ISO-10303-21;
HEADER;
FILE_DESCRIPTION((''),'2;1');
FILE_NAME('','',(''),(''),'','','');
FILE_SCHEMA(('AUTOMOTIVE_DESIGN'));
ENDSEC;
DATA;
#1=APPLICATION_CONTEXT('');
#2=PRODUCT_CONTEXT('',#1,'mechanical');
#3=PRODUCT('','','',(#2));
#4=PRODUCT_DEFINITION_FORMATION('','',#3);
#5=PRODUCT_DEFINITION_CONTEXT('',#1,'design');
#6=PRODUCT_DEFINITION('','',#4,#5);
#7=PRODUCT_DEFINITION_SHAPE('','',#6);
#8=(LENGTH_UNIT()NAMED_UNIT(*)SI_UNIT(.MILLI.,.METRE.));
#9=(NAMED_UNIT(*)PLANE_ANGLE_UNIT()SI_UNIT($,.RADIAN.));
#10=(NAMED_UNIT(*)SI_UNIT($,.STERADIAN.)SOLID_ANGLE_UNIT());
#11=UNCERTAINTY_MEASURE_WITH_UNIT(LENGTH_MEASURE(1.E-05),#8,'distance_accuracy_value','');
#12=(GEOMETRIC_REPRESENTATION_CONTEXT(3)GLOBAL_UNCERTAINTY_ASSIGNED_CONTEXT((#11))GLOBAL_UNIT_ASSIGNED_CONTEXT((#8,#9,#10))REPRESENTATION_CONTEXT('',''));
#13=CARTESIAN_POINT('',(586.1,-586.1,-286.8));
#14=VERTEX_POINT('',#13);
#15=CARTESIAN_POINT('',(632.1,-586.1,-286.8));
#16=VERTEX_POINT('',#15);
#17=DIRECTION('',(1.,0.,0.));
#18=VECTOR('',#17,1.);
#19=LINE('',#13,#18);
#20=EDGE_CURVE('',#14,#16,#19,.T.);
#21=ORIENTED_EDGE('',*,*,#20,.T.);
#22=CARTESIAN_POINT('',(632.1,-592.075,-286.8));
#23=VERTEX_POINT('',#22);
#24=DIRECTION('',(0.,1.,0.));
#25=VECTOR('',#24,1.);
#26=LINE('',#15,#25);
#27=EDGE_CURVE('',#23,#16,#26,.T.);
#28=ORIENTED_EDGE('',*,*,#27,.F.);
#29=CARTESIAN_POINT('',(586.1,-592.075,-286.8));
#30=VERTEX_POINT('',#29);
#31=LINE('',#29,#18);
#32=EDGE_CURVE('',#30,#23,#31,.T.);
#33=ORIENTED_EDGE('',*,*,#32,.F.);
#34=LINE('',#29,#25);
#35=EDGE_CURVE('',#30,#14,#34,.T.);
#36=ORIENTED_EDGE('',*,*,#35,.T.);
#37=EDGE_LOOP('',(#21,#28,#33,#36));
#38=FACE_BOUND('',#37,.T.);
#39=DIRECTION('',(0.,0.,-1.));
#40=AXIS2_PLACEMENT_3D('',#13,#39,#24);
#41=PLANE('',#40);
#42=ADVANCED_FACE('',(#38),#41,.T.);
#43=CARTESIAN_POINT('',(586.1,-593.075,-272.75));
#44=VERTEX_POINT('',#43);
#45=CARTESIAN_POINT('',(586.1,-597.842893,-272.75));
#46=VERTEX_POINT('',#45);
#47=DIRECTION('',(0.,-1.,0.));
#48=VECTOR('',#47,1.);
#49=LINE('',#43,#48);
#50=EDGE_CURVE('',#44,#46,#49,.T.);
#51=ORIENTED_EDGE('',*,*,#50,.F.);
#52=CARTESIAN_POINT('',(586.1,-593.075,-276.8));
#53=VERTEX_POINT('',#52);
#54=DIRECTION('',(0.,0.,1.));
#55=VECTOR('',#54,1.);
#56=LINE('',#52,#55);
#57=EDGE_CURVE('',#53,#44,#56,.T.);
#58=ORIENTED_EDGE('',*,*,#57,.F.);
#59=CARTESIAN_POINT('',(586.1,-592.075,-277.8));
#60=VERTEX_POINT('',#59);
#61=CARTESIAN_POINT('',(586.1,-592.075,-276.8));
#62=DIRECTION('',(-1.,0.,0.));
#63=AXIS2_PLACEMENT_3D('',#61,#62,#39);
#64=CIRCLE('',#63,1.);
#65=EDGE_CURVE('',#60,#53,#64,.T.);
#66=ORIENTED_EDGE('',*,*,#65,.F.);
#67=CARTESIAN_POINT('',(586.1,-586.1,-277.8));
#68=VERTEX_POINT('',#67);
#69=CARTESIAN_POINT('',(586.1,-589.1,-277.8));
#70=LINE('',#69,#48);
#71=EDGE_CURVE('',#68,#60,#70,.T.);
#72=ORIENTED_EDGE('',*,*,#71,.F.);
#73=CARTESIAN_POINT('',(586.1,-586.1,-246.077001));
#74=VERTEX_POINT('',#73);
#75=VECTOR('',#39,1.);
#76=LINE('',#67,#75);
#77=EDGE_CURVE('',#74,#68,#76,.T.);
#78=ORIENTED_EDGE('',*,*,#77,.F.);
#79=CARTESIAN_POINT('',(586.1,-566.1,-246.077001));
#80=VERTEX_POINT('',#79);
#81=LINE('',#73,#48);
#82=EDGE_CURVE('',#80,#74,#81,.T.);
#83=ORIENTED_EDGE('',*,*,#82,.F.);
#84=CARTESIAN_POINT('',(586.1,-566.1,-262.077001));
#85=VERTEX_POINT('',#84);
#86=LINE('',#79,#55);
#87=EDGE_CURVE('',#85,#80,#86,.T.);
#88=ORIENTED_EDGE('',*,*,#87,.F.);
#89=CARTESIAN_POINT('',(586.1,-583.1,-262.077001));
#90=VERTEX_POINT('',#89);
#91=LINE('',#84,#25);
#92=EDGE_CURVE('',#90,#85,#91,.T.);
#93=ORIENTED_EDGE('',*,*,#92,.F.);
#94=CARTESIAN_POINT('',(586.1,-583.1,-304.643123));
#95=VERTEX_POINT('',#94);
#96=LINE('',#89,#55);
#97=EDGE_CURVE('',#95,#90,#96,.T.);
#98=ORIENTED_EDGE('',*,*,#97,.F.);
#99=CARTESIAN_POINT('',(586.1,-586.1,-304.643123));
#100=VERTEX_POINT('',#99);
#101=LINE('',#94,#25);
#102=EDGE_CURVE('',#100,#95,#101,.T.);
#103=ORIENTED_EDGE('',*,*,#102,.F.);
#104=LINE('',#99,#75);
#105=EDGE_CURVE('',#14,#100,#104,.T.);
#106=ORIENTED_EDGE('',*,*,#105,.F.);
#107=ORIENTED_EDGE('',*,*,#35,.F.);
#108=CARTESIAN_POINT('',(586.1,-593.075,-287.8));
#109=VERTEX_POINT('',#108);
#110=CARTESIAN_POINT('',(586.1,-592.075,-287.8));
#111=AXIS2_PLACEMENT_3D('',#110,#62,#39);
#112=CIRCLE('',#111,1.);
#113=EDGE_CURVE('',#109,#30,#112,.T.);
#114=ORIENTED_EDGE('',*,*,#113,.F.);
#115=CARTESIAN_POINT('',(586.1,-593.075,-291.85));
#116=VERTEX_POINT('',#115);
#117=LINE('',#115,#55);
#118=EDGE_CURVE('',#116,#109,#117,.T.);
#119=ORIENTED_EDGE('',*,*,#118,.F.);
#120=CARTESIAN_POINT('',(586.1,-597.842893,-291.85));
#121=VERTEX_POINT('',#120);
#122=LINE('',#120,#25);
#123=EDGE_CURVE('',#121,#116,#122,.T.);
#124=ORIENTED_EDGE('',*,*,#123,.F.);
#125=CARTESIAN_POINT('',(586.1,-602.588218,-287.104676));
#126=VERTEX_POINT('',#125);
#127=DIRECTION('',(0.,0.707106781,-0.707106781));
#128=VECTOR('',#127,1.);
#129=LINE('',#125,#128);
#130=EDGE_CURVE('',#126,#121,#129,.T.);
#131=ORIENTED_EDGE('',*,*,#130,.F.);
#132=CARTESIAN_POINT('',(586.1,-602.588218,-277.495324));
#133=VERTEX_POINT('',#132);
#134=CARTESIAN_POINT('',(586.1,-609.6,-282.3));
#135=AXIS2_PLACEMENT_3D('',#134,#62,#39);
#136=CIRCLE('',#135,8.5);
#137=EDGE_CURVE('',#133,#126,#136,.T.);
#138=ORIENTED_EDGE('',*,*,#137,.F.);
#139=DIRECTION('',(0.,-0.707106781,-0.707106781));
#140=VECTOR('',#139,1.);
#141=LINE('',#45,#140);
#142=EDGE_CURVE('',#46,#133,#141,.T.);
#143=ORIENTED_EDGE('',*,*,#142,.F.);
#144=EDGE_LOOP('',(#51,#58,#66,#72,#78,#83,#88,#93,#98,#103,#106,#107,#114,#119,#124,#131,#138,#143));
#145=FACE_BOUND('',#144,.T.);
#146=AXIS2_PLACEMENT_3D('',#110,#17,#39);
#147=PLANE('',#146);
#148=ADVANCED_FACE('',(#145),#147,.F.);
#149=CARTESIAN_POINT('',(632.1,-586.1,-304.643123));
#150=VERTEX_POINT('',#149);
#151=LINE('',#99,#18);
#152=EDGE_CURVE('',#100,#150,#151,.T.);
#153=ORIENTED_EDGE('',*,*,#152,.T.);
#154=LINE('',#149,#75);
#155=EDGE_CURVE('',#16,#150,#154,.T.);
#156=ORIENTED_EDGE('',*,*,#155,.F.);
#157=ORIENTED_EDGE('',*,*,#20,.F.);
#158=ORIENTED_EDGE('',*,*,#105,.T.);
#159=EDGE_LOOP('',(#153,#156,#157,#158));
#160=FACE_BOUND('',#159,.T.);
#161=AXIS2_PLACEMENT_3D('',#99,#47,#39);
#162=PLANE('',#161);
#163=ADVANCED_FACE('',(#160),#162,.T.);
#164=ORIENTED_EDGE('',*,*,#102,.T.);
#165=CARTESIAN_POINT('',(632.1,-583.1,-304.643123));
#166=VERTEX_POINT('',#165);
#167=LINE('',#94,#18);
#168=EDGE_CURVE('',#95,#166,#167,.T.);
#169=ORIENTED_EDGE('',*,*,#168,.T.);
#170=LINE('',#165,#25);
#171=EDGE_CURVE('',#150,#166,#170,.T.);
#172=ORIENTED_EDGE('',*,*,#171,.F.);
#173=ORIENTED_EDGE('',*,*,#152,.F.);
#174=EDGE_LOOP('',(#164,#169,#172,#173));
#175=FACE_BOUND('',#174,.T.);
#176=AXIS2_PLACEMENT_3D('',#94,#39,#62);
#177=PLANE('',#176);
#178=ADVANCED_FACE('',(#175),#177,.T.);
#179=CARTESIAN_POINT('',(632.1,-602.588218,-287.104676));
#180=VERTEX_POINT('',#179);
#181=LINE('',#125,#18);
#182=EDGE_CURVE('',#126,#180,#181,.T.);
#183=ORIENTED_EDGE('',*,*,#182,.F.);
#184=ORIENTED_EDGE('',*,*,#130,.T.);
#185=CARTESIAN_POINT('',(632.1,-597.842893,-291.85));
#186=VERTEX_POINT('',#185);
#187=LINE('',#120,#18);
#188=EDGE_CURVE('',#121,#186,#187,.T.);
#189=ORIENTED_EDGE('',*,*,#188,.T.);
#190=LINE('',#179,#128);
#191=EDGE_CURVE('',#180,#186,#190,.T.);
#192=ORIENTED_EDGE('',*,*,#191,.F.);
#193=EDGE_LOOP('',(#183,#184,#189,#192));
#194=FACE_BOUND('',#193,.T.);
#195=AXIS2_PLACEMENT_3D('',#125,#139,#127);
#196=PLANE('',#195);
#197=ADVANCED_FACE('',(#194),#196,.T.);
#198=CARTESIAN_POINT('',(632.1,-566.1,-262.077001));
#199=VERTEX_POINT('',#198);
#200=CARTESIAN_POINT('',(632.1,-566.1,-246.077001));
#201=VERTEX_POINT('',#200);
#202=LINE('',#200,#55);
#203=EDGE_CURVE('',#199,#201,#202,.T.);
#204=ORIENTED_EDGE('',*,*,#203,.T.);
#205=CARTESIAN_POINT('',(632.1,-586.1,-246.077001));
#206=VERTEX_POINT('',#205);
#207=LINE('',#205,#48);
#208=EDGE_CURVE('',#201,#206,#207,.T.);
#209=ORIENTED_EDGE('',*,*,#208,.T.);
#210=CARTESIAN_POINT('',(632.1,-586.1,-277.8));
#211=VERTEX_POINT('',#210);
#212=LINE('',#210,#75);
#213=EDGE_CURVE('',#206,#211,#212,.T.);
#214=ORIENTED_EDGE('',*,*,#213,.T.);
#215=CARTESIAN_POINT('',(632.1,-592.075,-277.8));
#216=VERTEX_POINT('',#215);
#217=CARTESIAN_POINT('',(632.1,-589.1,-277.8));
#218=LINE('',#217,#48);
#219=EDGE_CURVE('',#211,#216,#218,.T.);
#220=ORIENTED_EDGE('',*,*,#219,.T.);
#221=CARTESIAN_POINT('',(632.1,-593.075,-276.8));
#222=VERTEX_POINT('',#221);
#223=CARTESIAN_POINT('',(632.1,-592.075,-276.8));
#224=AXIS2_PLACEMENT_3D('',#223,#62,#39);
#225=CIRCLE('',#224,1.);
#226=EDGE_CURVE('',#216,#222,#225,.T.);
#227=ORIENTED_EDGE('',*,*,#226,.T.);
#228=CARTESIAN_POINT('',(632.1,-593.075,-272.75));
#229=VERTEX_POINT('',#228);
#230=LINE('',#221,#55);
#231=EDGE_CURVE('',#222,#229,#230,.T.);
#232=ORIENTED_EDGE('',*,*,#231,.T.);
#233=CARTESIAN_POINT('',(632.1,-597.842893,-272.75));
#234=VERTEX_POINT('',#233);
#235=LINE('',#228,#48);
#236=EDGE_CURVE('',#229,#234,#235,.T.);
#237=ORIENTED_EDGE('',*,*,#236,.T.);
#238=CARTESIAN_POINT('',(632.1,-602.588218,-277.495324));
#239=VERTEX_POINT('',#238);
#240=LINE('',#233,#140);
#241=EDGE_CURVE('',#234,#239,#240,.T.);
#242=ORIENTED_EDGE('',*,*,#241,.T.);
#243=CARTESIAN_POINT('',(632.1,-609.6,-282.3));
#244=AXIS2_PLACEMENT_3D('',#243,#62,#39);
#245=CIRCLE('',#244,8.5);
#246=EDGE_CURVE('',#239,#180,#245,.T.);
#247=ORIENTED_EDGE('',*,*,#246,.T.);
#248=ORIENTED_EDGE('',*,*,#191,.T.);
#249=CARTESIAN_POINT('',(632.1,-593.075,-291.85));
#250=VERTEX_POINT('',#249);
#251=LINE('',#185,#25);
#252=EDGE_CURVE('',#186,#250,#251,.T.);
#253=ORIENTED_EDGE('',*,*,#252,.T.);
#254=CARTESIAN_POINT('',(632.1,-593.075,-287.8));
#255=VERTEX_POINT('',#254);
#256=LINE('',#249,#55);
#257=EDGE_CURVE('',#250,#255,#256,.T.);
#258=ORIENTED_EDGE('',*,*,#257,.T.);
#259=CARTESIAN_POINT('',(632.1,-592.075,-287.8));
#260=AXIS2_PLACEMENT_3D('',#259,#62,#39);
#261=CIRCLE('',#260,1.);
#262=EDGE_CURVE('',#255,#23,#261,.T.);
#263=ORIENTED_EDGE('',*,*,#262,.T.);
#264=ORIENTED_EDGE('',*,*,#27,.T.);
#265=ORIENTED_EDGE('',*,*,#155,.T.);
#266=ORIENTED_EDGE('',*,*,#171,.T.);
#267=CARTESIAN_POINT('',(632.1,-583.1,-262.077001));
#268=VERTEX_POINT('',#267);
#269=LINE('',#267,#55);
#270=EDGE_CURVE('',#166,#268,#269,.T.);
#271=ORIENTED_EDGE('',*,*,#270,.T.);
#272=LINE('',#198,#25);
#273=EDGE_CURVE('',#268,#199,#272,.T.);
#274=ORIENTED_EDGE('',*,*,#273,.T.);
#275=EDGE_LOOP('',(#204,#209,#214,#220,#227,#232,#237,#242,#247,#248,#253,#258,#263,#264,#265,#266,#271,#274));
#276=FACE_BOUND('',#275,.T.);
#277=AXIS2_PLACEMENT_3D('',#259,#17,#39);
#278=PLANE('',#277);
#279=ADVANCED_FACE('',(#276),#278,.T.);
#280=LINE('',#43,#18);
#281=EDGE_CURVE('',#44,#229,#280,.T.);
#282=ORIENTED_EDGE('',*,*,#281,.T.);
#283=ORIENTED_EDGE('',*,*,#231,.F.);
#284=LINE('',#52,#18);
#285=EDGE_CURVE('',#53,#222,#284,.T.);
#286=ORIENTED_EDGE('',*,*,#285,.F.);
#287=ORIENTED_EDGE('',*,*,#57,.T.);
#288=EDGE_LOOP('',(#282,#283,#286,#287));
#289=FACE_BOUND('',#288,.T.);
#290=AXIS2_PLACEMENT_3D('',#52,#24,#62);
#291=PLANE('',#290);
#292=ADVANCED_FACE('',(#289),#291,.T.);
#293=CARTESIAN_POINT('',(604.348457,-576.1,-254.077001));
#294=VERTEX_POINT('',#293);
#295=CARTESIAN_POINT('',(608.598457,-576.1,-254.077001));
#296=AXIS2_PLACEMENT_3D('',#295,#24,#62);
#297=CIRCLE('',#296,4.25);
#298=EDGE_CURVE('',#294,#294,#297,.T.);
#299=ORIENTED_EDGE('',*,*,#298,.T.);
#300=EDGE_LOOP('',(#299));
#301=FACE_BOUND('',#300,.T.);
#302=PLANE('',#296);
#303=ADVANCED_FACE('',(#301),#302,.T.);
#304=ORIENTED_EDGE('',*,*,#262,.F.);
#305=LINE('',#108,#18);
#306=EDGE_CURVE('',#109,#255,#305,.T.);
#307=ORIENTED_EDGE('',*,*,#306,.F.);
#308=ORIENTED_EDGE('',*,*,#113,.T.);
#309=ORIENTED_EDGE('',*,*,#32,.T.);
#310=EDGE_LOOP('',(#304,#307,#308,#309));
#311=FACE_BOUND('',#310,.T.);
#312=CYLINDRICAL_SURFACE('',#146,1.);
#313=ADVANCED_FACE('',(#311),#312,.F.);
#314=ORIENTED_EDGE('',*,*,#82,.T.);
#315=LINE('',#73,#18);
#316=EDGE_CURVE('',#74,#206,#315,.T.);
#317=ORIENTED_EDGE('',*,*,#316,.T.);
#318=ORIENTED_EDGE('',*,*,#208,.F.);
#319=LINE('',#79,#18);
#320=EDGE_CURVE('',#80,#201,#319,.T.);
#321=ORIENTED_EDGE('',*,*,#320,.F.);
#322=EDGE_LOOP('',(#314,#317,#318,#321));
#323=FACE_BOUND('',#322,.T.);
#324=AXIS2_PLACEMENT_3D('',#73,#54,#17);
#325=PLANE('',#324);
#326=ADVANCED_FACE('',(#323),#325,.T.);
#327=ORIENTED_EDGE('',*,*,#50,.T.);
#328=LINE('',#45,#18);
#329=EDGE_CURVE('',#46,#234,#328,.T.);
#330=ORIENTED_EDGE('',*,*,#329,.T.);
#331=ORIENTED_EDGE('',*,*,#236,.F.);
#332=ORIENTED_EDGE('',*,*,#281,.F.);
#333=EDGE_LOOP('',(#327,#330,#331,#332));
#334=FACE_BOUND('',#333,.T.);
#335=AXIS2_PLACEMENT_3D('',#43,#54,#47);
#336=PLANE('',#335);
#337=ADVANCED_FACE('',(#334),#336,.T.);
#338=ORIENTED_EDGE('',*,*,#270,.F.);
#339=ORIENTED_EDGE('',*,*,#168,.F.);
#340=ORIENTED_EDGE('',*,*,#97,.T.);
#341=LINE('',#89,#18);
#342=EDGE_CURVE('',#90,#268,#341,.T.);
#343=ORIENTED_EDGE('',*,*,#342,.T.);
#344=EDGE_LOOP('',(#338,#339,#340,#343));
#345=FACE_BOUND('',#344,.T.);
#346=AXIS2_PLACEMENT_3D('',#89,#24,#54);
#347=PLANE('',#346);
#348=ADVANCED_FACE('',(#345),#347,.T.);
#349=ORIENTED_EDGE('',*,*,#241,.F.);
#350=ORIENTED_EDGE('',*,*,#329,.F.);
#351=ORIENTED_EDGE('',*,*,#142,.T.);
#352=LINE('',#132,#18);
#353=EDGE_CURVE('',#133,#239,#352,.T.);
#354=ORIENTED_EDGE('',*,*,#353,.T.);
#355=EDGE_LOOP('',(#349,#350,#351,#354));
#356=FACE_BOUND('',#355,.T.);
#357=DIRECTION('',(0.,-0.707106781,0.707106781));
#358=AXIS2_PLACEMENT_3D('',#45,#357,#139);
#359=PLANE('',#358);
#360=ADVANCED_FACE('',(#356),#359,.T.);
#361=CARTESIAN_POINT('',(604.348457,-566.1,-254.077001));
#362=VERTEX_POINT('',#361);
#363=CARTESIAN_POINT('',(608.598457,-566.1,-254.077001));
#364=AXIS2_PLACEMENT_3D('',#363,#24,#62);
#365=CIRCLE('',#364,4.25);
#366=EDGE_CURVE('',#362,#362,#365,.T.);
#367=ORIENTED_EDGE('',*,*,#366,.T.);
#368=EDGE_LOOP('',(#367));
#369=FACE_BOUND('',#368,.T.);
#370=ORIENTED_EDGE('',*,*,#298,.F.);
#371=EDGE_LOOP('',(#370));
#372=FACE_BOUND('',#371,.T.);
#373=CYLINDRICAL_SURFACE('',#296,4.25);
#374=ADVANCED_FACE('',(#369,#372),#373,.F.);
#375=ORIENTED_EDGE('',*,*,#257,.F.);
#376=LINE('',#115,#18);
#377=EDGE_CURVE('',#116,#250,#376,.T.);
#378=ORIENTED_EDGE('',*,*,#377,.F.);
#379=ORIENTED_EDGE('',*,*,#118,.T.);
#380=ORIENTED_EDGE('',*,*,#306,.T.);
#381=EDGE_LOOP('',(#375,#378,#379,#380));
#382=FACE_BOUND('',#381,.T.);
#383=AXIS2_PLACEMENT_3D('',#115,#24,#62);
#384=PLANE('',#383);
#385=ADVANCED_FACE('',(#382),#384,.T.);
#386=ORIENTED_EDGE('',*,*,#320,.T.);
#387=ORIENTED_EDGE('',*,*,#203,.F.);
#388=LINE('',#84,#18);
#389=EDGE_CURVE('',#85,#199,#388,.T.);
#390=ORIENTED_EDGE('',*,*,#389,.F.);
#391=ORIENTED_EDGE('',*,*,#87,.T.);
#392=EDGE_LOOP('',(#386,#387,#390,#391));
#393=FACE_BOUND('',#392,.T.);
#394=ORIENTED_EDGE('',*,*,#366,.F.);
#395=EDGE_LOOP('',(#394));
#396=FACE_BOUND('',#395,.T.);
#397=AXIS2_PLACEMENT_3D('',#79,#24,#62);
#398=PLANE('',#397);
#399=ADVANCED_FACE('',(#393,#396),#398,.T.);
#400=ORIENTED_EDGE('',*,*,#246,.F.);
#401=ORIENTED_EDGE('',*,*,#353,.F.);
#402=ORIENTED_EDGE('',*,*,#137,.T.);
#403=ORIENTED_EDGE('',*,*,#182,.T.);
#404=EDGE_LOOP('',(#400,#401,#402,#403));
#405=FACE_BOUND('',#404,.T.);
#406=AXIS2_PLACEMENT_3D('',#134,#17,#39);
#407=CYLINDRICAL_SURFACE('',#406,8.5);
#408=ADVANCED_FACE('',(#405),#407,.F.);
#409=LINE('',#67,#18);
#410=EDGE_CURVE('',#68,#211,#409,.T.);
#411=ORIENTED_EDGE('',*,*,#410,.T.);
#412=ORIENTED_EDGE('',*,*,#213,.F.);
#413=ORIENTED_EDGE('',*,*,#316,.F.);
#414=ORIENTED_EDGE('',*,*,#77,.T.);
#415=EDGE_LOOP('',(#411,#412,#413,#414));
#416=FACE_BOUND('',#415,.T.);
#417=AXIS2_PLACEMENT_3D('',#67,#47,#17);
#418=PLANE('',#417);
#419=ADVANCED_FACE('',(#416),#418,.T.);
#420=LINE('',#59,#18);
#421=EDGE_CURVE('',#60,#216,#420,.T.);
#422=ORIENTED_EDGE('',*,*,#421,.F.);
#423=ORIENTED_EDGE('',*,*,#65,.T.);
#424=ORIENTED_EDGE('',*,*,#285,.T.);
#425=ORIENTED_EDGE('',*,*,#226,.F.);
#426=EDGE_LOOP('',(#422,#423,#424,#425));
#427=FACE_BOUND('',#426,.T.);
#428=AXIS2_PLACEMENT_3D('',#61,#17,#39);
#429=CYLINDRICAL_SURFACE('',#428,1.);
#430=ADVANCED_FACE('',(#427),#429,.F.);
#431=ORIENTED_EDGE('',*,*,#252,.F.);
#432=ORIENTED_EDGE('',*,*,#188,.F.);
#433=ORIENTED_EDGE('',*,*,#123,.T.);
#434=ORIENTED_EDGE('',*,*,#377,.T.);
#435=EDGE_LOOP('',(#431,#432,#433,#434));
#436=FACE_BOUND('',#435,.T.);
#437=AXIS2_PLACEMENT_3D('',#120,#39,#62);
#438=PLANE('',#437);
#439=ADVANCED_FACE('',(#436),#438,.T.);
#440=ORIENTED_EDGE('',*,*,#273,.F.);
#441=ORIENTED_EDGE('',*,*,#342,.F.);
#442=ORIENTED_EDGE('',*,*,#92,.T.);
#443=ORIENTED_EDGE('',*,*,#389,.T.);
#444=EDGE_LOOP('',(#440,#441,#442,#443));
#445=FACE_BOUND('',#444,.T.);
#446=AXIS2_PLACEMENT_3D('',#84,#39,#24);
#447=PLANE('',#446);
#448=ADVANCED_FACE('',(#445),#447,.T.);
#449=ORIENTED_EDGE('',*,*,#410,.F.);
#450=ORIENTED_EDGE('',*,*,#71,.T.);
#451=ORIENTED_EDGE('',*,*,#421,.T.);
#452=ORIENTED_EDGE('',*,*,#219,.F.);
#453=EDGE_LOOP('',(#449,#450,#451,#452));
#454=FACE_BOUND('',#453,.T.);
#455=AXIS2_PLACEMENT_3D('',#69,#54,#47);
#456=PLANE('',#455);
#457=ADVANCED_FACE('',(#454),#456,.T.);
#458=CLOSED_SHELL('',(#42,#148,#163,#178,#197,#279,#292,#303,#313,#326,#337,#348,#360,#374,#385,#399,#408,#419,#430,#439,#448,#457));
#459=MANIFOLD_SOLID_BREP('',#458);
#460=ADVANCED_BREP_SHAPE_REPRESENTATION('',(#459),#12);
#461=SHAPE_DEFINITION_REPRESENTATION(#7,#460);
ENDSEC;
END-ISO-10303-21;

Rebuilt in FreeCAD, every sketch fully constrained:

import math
import FreeCAD as App
import Part
import Sketcher
from FreeCAD import Vector
Q = App.Units.Quantity

doc = App.newDocument("Part")
body = doc.addObject("PartDesign::Body", "Body")

sketch1 = body.newObject("Sketcher::SketchObject", "Sketch")
sketch1.AttachmentSupport = (doc.getObject("YZ_Plane"), [""])
sketch1.MapMode = "FlatFace"
sketch1.AttachmentOffset = App.Placement(Vector(0, 0, 632.1), App.Rotation())
sketch1.addGeometry([
    Part.LineSegment(Vector(-586.1, -246.1, 0), Vector(-586.1, -277.8, 0)),
    Part.LineSegment(Vector(-586.1, -277.8, 0), Vector(-592.1, -277.8, 0)),
    Part.ArcOfCircle(Part.Circle(Vector(-592.1, -276.8, 0), Vector(0, 0, 1), 1), math.radians(-180), math.radians(-90)),
    Part.LineSegment(Vector(-593.1, -276.8, 0), Vector(-593.1, -272.8, 0)),
    Part.LineSegment(Vector(-593.1, -272.8, 0), Vector(-597.8, -272.8, 0)),
    Part.LineSegment(Vector(-597.8, -272.8, 0), Vector(-602.6, -277.5, 0)),
    Part.ArcOfCircle(Part.Circle(Vector(-609.6, -282.3, 0), Vector(0, 0, 1), 8.5), math.radians(-34), math.radians(34)),
    Part.LineSegment(Vector(-602.6, -287.1, 0), Vector(-597.8, -291.9, 0)),
    Part.LineSegment(Vector(-597.8, -291.9, 0), Vector(-593.1, -291.9, 0)),
    Part.LineSegment(Vector(-593.1, -291.9, 0), Vector(-593.1, -287.8, 0)),
    Part.ArcOfCircle(Part.Circle(Vector(-592.1, -287.8, 0), Vector(0, 0, 1), 1), math.radians(90), math.radians(180)),
    Part.LineSegment(Vector(-592.1, -286.8, 0), Vector(-586.1, -286.8, 0)),
    Part.LineSegment(Vector(-586.1, -286.8, 0), Vector(-586.1, -304.6, 0)),
    Part.LineSegment(Vector(-586.1, -304.6, 0), Vector(-583.1, -304.6, 0)),
    Part.LineSegment(Vector(-583.1, -304.6, 0), Vector(-583.1, -262.1, 0)),
    Part.LineSegment(Vector(-583.1, -262.1, 0), Vector(-566.1, -262.1, 0)),
    Part.LineSegment(Vector(-566.1, -262.1, 0), Vector(-566.1, -246.1, 0)),
    Part.LineSegment(Vector(-566.1, -246.1, 0), Vector(-586.1, -246.1, 0)),
], False)
sketch1.addConstraint([
    Sketcher.Constraint("Coincident", 0, 2, 1, 1),
    Sketcher.Constraint("Tangent", 1, 2, 2, 2),
    Sketcher.Constraint("Tangent", 2, 1, 3, 1),
    Sketcher.Constraint("Coincident", 3, 2, 4, 1),
    Sketcher.Constraint("Coincident", 4, 2, 5, 1),
    Sketcher.Constraint("Coincident", 5, 2, 6, 2),
    Sketcher.Constraint("Coincident", 6, 1, 7, 1),
    Sketcher.Constraint("Coincident", 7, 2, 8, 1),
    Sketcher.Constraint("Coincident", 8, 2, 9, 1),
    Sketcher.Constraint("Tangent", 9, 2, 10, 2),
    Sketcher.Constraint("Tangent", 10, 1, 11, 1),
    Sketcher.Constraint("Coincident", 11, 2, 12, 1),
    Sketcher.Constraint("Coincident", 12, 2, 13, 1),
    Sketcher.Constraint("Coincident", 13, 2, 14, 1),
    Sketcher.Constraint("Coincident", 14, 2, 15, 1),
    Sketcher.Constraint("Coincident", 15, 2, 16, 1),
    Sketcher.Constraint("Coincident", 16, 2, 17, 1),
    Sketcher.Constraint("Coincident", 17, 2, 0, 1),
    Sketcher.Constraint("Vertical", 0),
    Sketcher.Constraint("Horizontal", 1),
    Sketcher.Constraint("Vertical", 3),
    Sketcher.Constraint("Horizontal", 4),
    Sketcher.Constraint("Horizontal", 8),
    Sketcher.Constraint("Vertical", 9),
    Sketcher.Constraint("Horizontal", 11),
    Sketcher.Constraint("Vertical", 12),
    Sketcher.Constraint("Horizontal", 13),
    Sketcher.Constraint("Vertical", 14),
    Sketcher.Constraint("Horizontal", 15),
    Sketcher.Constraint("Vertical", 16),
    Sketcher.Constraint("Horizontal", 17),
    Sketcher.Constraint("Equal", 2, 10),
    Sketcher.Constraint("Perpendicular", 5, 7),
    Sketcher.Constraint("Vertical", 2, 3, 10, 3),
    Sketcher.Constraint("Vertical", 5, 2, 6, 1),
    Sketcher.Constraint("Vertical", 4, 2, 7, 2),
    Sketcher.Constraint("Vertical", 0, 2, 11, 2),
    Sketcher.Constraint("Equal", 3, 9),
    Sketcher.Constraint("Equal", 5, 7),
    Sketcher.Constraint("Radius", 2, Q("1 mm")),
    Sketcher.Constraint("Radius", 6, Q("8.5 mm")),
    Sketcher.Constraint("DistanceX", 13, 1, 13, 2, Q("3 mm")),
    Sketcher.Constraint("DistanceX", 15, 1, 15, 2, Q("17 mm")),
    Sketcher.Constraint("DistanceY", 16, 1, 16, 2, Q("16 mm")),
    Sketcher.Constraint("DistanceY", 10, 3, 2, 3, Q("11 mm")),
    Sketcher.Constraint("DistanceY", 3, 1, 3, 2, Q("4.05 mm")),
    Sketcher.Constraint("DistanceY", 2, 3, -1, 1, Q("276.8 mm")),
    Sketcher.Constraint("DistanceX", 6, 3, -1, 1, Q("609.6 mm")),
    Sketcher.Constraint("DistanceX", 0, 2, -1, 1, Q("586.1 mm")),
    Sketcher.Constraint("DistanceX", 1, 2, 1, 1, Q("5.975 mm")),
    Sketcher.Constraint("DistanceY", 0, 2, 0, 1, Q("31.722999 mm")),
    Sketcher.Constraint("DistanceX", 4, 2, 4, 1, Q("4.767893 mm")),
    Sketcher.Constraint("DistanceY", 12, 2, 12, 1, Q("17.843123 mm")),
])
pad1 = body.newObject("PartDesign::Pad", "Pad")
pad1.Profile = sketch1
pad1.Length = 46
pad1.Reversed = True

sketch2 = body.newObject("Sketcher::SketchObject", "Sketch001")
sketch2.AttachmentSupport = (doc.getObject("XZ_Plane"), [""])
sketch2.MapMode = "FlatFace"
sketch2.AttachmentOffset = App.Placement(Vector(0, 0, 566.1), App.Rotation())
sketch2.addGeometry(Part.Circle(Vector(608.6, -254.1, 0), Vector(0, 0, 1), 4.2), False)
sketch2.addConstraint([
    Sketcher.Constraint("Diameter", 0, Q("8.5 mm")),
    Sketcher.Constraint("DistanceY", 0, 3, -1, 1, Q("254.077001 mm")),
    Sketcher.Constraint("DistanceX", -1, 1, 0, 3, Q("608.598457 mm")),
])
pocket1 = body.newObject("PartDesign::Pocket", "Pocket")
pocket1.Profile = sketch2
pocket1.Length = 10
pocket1.Reversed = True

doc.recompute()
